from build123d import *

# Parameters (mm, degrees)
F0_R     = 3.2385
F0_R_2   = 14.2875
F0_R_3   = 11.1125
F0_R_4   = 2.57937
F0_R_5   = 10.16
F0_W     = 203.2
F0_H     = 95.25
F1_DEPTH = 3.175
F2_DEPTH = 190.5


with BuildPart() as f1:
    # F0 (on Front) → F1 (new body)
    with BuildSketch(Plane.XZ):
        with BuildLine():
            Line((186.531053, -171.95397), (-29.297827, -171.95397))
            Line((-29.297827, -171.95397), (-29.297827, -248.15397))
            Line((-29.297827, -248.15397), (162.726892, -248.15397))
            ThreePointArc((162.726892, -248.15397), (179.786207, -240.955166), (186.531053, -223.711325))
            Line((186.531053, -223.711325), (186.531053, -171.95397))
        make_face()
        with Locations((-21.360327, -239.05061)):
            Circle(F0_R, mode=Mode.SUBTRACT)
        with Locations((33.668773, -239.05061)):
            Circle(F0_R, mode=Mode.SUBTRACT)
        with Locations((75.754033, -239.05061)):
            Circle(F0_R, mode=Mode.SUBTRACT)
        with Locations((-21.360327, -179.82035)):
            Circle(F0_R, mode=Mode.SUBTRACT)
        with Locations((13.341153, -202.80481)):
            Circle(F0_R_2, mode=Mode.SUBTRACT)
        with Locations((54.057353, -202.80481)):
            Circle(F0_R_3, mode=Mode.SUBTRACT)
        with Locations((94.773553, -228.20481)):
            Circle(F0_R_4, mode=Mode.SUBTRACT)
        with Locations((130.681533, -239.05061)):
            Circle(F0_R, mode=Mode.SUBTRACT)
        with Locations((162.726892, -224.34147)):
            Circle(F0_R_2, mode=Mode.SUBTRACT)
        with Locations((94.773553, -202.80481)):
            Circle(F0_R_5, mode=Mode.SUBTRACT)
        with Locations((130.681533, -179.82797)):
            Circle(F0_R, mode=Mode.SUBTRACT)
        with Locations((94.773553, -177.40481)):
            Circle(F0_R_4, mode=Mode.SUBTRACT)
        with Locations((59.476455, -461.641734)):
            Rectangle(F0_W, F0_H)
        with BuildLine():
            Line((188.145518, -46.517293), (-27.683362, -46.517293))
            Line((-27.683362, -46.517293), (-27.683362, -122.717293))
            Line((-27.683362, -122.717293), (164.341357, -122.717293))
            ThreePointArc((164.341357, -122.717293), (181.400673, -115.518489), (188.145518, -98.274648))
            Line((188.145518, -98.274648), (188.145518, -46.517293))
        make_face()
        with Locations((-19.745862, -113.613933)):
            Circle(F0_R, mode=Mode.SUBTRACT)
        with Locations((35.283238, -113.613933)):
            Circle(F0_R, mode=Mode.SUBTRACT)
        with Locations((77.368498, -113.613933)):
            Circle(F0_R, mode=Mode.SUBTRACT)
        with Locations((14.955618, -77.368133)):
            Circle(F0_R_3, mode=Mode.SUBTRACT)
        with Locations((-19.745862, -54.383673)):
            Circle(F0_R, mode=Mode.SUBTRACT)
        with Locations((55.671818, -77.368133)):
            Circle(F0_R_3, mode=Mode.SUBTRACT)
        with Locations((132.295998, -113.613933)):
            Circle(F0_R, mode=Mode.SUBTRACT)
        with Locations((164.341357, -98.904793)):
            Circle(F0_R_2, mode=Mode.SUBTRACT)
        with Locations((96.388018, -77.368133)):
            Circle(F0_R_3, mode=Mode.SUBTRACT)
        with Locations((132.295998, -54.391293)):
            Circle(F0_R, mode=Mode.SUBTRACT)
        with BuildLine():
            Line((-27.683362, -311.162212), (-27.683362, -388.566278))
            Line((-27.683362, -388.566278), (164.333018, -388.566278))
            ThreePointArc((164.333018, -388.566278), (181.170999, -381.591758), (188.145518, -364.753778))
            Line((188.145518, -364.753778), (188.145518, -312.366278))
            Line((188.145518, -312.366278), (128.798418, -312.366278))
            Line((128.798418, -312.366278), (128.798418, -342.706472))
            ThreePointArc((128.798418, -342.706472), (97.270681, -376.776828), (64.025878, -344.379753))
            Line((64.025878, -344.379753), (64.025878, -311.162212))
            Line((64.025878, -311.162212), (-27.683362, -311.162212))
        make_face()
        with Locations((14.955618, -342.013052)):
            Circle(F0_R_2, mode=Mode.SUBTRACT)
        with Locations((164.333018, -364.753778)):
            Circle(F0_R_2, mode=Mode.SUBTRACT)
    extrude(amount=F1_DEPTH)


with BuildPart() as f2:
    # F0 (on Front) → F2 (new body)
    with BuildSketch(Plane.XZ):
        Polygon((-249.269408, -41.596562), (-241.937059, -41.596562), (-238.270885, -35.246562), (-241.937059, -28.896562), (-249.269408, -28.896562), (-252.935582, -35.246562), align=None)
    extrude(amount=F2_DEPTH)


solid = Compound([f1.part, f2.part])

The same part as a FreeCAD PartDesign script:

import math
import FreeCAD as App
import Part
import Sketcher
from FreeCAD import Vector
Q = App.Units.Quantity

doc = App.newDocument("Part")
body = doc.addObject("PartDesign::Body", "Body")
body.AllowCompound = True

# Sketch on XZ plane
sketch1 = doc.addObject("Sketcher::SketchObject", "Sketch")
body.addObject(sketch1)
sketch1.AttachmentSupport = (doc.XZ_Plane, [""])
sketch1.MapMode = "FlatFace"
sketch1.addGeometry(Part.LineSegment(Vector(186.531053, -171.95397, 0), Vector(-29.297827, -171.95397, 0)), False)
sketch1.addGeometry(Part.LineSegment(Vector(-29.297827, -171.95397, 0), Vector(-29.297827, -248.15397, 0)), False)
sketch1.addGeometry(Part.LineSegment(Vector(-29.297827, -248.15397, 0), Vector(162.726892, -248.15397, 0)), False)
sketch1.addGeometry(Part.ArcOfCircle(Part.Circle(Vector(162.72689, -224.341468, 0), Vector(0, 0, 1), 23.812502), math.radians(-89.999996), math.radians(1.516378)), False)
sketch1.addGeometry(Part.LineSegment(Vector(186.531053, -223.711325, 0), Vector(186.531053, -171.95397, 0)), False)
sketch1.addGeometry(Part.Circle(Vector(-21.360327, -239.05061, 0), Vector(0, 0, 1), 3.2385), False)
sketch1.addGeometry(Part.Circle(Vector(33.668773, -239.05061, 0), Vector(0, 0, 1), 3.2385), False)
sketch1.addGeometry(Part.Circle(Vector(75.754033, -239.05061, 0), Vector(0, 0, 1), 3.2385), False)
sketch1.addGeometry(Part.Circle(Vector(94.773553, -228.20481, 0), Vector(0, 0, 1), 2.57937), False)
sketch1.addGeometry(Part.Circle(Vector(130.681533, -239.05061, 0), Vector(0, 0, 1), 3.2385), False)
sketch1.addGeometry(Part.Circle(Vector(162.726892, -224.34147, 0), Vector(0, 0, 1), 14.2875), False)
sketch1.addGeometry(Part.Circle(Vector(13.341153, -202.80481, 0), Vector(0, 0, 1), 14.2875), False)
sketch1.addGeometry(Part.Circle(Vector(54.057353, -202.80481, 0), Vector(0, 0, 1), 11.1125), False)
sketch1.addGeometry(Part.Circle(Vector(-21.360327, -179.82035, 0), Vector(0, 0, 1), 3.2385), False)
sketch1.addGeometry(Part.Circle(Vector(94.773553, -202.80481, 0), Vector(0, 0, 1), 10.16), False)
sketch1.addGeometry(Part.Circle(Vector(94.773553, -177.40481, 0), Vector(0, 0, 1), 2.57937), False)
sketch1.addGeometry(Part.Circle(Vector(130.681533, -179.82797, 0), Vector(0, 0, 1), 3.2385), False)
sketch1.addGeometry(Part.LineSegment(Vector(-42.123545, -414.016734, 0), Vector(-42.123545, -509.266734, 0)), False)
sketch1.addGeometry(Part.LineSegment(Vector(-42.123545, -509.266734, 0), Vector(161.076455, -509.266734, 0)), False)
sketch1.addGeometry(Part.LineSegment(Vector(161.076455, -509.266734, 0), Vector(161.076455, -414.016734, 0)), False)
sketch1.addGeometry(Part.LineSegment(Vector(161.076455, -414.016734, 0), Vector(-42.123545, -414.016734, 0)), False)
sketch1.addGeometry(Part.LineSegment(Vector(188.145518, -46.517293, 0), Vector(-27.683362, -46.517293, 0)), False)
sketch1.addGeometry(Part.LineSegment(Vector(-27.683362, -46.517293, 0), Vector(-27.683362, -122.717293, 0)), False)
sketch1.addGeometry(Part.LineSegment(Vector(-27.683362, -122.717293, 0), Vector(164.341357, -122.717293, 0)), False)
sketch1.addGeometry(Part.ArcOfCircle(Part.Circle(Vector(164.341357, -98.904793, 0), Vector(0, 0, 1), 23.8125), math.radians(-90), math.radians(1.516382)), False)
sketch1.addGeometry(Part.LineSegment(Vector(188.145518, -98.274648, 0), Vector(188.145518, -46.517293, 0)), False)
sketch1.addGeometry(Part.Circle(Vector(-19.745862, -113.613933, 0), Vector(0, 0, 1), 3.2385), False)
sketch1.addGeometry(Part.Circle(Vector(35.283238, -113.613933, 0), Vector(0, 0, 1), 3.2385), False)
sketch1.addGeometry(Part.Circle(Vector(77.368498, -113.613933, 0), Vector(0, 0, 1), 3.2385), False)
sketch1.addGeometry(Part.Circle(Vector(132.295998, -113.613933, 0), Vector(0, 0, 1), 3.2385), False)
sketch1.addGeometry(Part.Circle(Vector(164.341357, -98.904793, 0), Vector(0, 0, 1), 14.2875), False)
sketch1.addGeometry(Part.Circle(Vector(14.955618, -77.368133, 0), Vector(0, 0, 1), 11.1125), False)
sketch1.addGeometry(Part.Circle(Vector(55.671818, -77.368133, 0), Vector(0, 0, 1), 11.1125), False)
sketch1.addGeometry(Part.Circle(Vector(-19.745862, -54.383673, 0), Vector(0, 0, 1), 3.2385), False)
sketch1.addGeometry(Part.Circle(Vector(96.388018, -77.368133, 0), Vector(0, 0, 1), 11.1125), False)
sketch1.addGeometry(Part.Circle(Vector(132.295998, -54.391293, 0), Vector(0, 0, 1), 3.2385), False)
sketch1.addGeometry(Part.LineSegment(Vector(-27.683362, -311.162212, 0), Vector(-27.683362, -388.566278, 0)), False)
sketch1.addGeometry(Part.LineSegment(Vector(-27.683362, -388.566278, 0), Vector(164.333018, -388.566278, 0)), False)
sketch1.addGeometry(Part.ArcOfCircle(Part.Circle(Vector(164.333019, -364.753779, 0), Vector(0, 0, 1), 23.812499), math.radians(-90.000002), math.radians(0.000002)), False)
sketch1.addGeometry(Part.LineSegment(Vector(188.145518, -364.753778, 0), Vector(188.145518, -312.366278, 0)), False)
sketch1.addGeometry(Part.LineSegment(Vector(188.145518, -312.366278, 0), Vector(128.798418, -312.366278, 0)), False)
sketch1.addGeometry(Part.LineSegment(Vector(128.798418, -312.366278, 0), Vector(128.798418, -342.706472, 0)), False)
sketch1.addGeometry(Part.ArcOfCircle(Part.Circle(Vector(96.433761, -344.379753, 0), Vector(0, 0, 1), 32.407883), math.radians(180), math.radians(362.959607)), False)
sketch1.addGeometry(Part.LineSegment(Vector(64.025878, -344.379753, 0), Vector(64.025878, -311.162212, 0)), False)
sketch1.addGeometry(Part.LineSegment(Vector(64.025878, -311.162212, 0), Vector(-27.683362, -311.162212, 0)), False)
sketch1.addGeometry(Part.Circle(Vector(164.333018, -364.753778, 0), Vector(0, 0, 1), 14.2875), False)
sketch1.addGeometry(Part.Circle(Vector(14.955618, -342.013052, 0), Vector(0, 0, 1), 14.2875), False)
sketch1.addConstraint(Sketcher.Constraint("Coincident", 0, 2, 1, 1))
sketch1.addConstraint(Sketcher.Constraint("Coincident", 1, 2, 2, 1))
sketch1.addConstraint(Sketcher.Constraint("Coincident", 2, 2, 3, 1))
sketch1.addConstraint(Sketcher.Constraint("Coincident", 3, 2, 4, 1))
sketch1.addConstraint(Sketcher.Constraint("Coincident", 4, 2, 0, 1))
sketch1.addConstraint(Sketcher.Constraint("Coincident", 17, 2, 18, 1))
sketch1.addConstraint(Sketcher.Constraint("Coincident", 18, 2, 19, 1))
sketch1.addConstraint(Sketcher.Constraint("Coincident", 19, 2, 20, 1))
sketch1.addConstraint(Sketcher.Constraint("Coincident", 20, 2, 17, 1))
sketch1.addConstraint(Sketcher.Constraint("Coincident", 21, 2, 22, 1))
sketch1.addConstraint(Sketcher.Constraint("Coincident", 22, 2, 23, 1))
sketch1.addConstraint(Sketcher.Constraint("Coincident", 23, 2, 24, 1))
sketch1.addConstraint(Sketcher.Constraint("Coincident", 24, 2, 25, 1))
sketch1.addConstraint(Sketcher.Constraint("Coincident", 25, 2, 21, 1))
sketch1.addConstraint(Sketcher.Constraint("Coincident", 36, 2, 37, 1))
sketch1.addConstraint(Sketcher.Constraint("Coincident", 37, 2, 38, 1))
sketch1.addConstraint(Sketcher.Constraint("Coincident", 38, 2, 39, 1))
sketch1.addConstraint(Sketcher.Constraint("Coincident", 39, 2, 40, 1))
sketch1.addConstraint(Sketcher.Constraint("Coincident", 40, 2, 41, 1))
sketch1.addConstraint(Sketcher.Constraint("Coincident", 41, 2, 42, 2))
sketch1.addConstraint(Sketcher.Constraint("Coincident", 42, 1, 43, 1))
sketch1.addConstraint(Sketcher.Constraint("Coincident", 43, 2, 44, 1))
sketch1.addConstraint(Sketcher.Constraint("Coincident", 44, 2, 36, 1))
sketch1.addConstraint(Sketcher.Constraint("Horizontal", 0))
sketch1.addConstraint(Sketcher.Constraint("Vertical", 1))
sketch1.addConstraint(Sketcher.Constraint("Horizontal", 2))
sketch1.addConstraint(Sketcher.Constraint("Vertical", 4))
sketch1.addConstraint(Sketcher.Constraint("Vertical", 17))
sketch1.addConstraint(Sketcher.Constraint("Horizontal", 18))
sketch1.addConstraint(Sketcher.Constraint("Vertical", 19))
sketch1.addConstraint(Sketcher.Constraint("Horizontal", 20))
sketch1.addConstraint(Sketcher.Constraint("Horizontal", 21))
sketch1.addConstraint(Sketcher.Constraint("Vertical", 22))
sketch1.addConstraint(Sketcher.Constraint("Horizontal", 23))
sketch1.addConstraint(Sketcher.Constraint("Vertical", 25))
sketch1.addConstraint(Sketcher.Constraint("Vertical", 36))
sketch1.addConstraint(Sketcher.Constraint("Horizontal", 37))
sketch1.addConstraint(Sketcher.Constraint("Vertical", 39))
sketch1.addConstraint(Sketcher.Constraint("Horizontal", 40))
sketch1.addConstraint(Sketcher.Constraint("Vertical", 41))
sketch1.addConstraint(Sketcher.Constraint("Vertical", 43))
sketch1.addConstraint(Sketcher.Constraint("Horizontal", 44))
sketch1.addConstraint(Sketcher.Constraint("Coincident", 10, 3, 3, 3))
sketch1.addConstraint(Sketcher.Constraint("Coincident", 30, 3, 24, 3))
sketch1.addConstraint(Sketcher.Constraint("Coincident", 45, 3, 38, 3))
sketch1.addConstraint(Sketcher.Constraint("Diameter", 14, Q("0.8 in")))
sketch1.addConstraint(Sketcher.Constraint("DistanceX", 18, 1, 18, 2, Q("8 in")))
sketch1.addConstraint(Sketcher.Constraint("DistanceY", 1, 2, 1, 1, Q("3 in")))
sketch1.addConstraint(Sketcher.Constraint("DistanceY", 22, 2, 22, 1, Q("3 in")))
sketch1.addConstraint(Sketcher.Constraint("Diameter", 5, Q("0.255 in")))
sketch1.addConstraint(Sketcher.Constraint("Diameter", 6, Q("0.255 in")))
sketch1.addConstraint(Sketcher.Constraint("Diameter", 7, Q("0.255 in")))
sketch1.addConstraint(Sketcher.Constraint("Diameter", 9, Q("0.255 in")))
sketch1.addConstraint(Sketcher.Constraint("Diameter", 10, Q("1.125 in")))
sketch1.addConstraint(Sketcher.Constraint("Diameter", 11, Q("1.125 in")))
sketch1.addConstraint(Sketcher.Constraint("Diameter", 12, Q("0.875 in")))
sketch1.addConstraint(Sketcher.Constraint("Diameter", 13, Q("0.255 in")))
sketch1.addConstraint(Sketcher.Constraint("Diameter", 16, Q("0.255 in")))
sketch1.addConstraint(Sketcher.Constraint("Diameter", 26, Q("0.255 in")))
sketch1.addConstraint(Sketcher.Constraint("Diameter", 27, Q("0.255 in")))
sketch1.addConstraint(Sketcher.Constraint("Diameter", 28, Q("0.255 in")))
sketch1.addConstraint(Sketcher.Constraint("Diameter", 29, Q("0.255 in")))
sketch1.addConstraint(Sketcher.Constraint("Diameter", 30, Q("1.125 in")))
sketch1.addConstraint(Sketcher.Constraint("Diameter", 31, Q("0.875 in")))
sketch1.addConstraint(Sketcher.Constraint("Diameter", 32, Q("0.875 in")))
sketch1.addConstraint(Sketcher.Constraint("Diameter", 33, Q("0.255 in")))
sketch1.addConstraint(Sketcher.Constraint("Diameter", 34, Q("0.875 in")))
sketch1.addConstraint(Sketcher.Constraint("Diameter", 35, Q("0.255 in")))
sketch1.addConstraint(Sketcher.Constraint("Diameter", 45, Q("1.125 in")))
sketch1.addConstraint(Sketcher.Constraint("Diameter", 46, Q("1.125 in")))
sketch1.addConstraint(Sketcher.Constraint("Radius", 3, Q("0.9375001 in")))
sketch1.addConstraint(Sketcher.Constraint("Radius", 24, Q("0.9375 in")))
sketch1.addConstraint(Sketcher.Constraint("Radius", 38, Q("0.9375 in")))
sketch1.addConstraint(Sketcher.Constraint("DistanceY", 8, 3, 11, 3, Q("1 in")))
sketch1.addConstraint(Sketcher.Constraint("DistanceY", 8, 3, 12, 3, Q("1 in")))
sketch1.addConstraint(Sketcher.Constraint("DistanceY", 8, 3, 14, 3, Q("1 in")))
sketch1.addConstraint(Sketcher.Constraint("DistanceY", 14, 3, 15, 3, Q("1 in")))
sketch1.addConstraint(Sketcher.Constraint("DistanceY", 37, 2, 39, 2, Q("3 in")))
sketch1.addConstraint(Sketcher.Constraint("Diameter", 8, Q("0.2031 in")))
sketch1.addConstraint(Sketcher.Constraint("Diameter", 15, Q("0.2031 in")))
sketch1.addConstraint(Sketcher.Constraint("DistanceY", 17, 2, 17, 1, Q("3.75 in")))
sketch1.addConstraint(Sketcher.Constraint("DistanceY", 39, 1, 39, 2, Q("2.0625 in")))
sketch1.addConstraint(Sketcher.Constraint("DistanceY", 2, 2, 16, 3, Q("2.69 in")))
sketch1.addConstraint(Sketcher.Constraint("DistanceY", 35, 3, 25, 2, Q("0.31 in")))
sketch1.addConstraint(Sketcher.Constraint("DistanceX", 0, 2, 0, 1, Q("8.4972 in")))
sketch1.addConstraint(Sketcher.Constraint("DistanceX", 21, 2, 21, 1, Q("8.4972 in")))
sketch1.addConstraint(Sketcher.Constraint("DistanceX", 37, 1, 37, 2, Q("7.5597 in")))
sketch1.addConstraint(Sketcher.Constraint("DistanceX", 40, 2, 40, 1, Q("2.3365 in")))
sketch1.addConstraint(Sketcher.Constraint("DistanceX", 44, 2, 44, 1, Q("3.6106 in")))
sketch1.addConstraint(Sketcher.Constraint("DistanceY", 7, 3, 8, 3, Q("0.427 in")))
sketch1.addConstraint(Sketcher.Constraint("DistanceY", 6, 3, 8, 3, Q("0.427 in")))
sketch1.addConstraint(Sketcher.Constraint("DistanceY", 5, 3, 8, 3, Q("0.427 in")))
sketch1.addConstraint(Sketcher.Constraint("DistanceY", 9, 3, 8, 3, Q("0.427 in")))
sketch1.addConstraint(Sketcher.Constraint("DistanceX", 11, 3, 8, 3, Q("3.206 in")))
sketch1.addConstraint(Sketcher.Constraint("DistanceX", 11, 3, 12, 3, Q("1.603 in")))
sketch1.addConstraint(Sketcher.Constraint("DistanceX", 12, 3, 14, 3, Q("1.603 in")))
sketch1.addConstraint(Sketcher.Constraint("DistanceX", 12, 3, 15, 3, Q("1.603 in")))
sketch1.addConstraint(Sketcher.Constraint("DistanceY", 27, 3, 31, 3, Q("1.427 in")))
sketch1.addConstraint(Sketcher.Constraint("DistanceY", 26, 3, 31, 3, Q("1.427 in")))
sketch1.addConstraint(Sketcher.Constraint("DistanceY", 28, 3, 31, 3, Q("1.427 in")))
sketch1.addConstraint(Sketcher.Constraint("DistanceY", 29, 3, 31, 3, Q("1.427 in")))
sketch1.addConstraint(Sketcher.Constraint("DistanceX", 31, 3, 32, 3, Q("1.603 in")))
sketch1.addConstraint(Sketcher.Constraint("DistanceY", 27, 3, 32, 3, Q("1.427 in")))
sketch1.addConstraint(Sketcher.Constraint("DistanceX", 32, 3, 34, 3, Q("1.603 in")))
sketch1.addConstraint(Sketcher.Constraint("DistanceY", 28, 3, 34, 3, Q("1.427 in")))
sketch1.addConstraint(Sketcher.Constraint("DistanceX", 0, 2, 13, 3, Q("0.3125 in")))
sketch1.addConstraint(Sketcher.Constraint("DistanceX", 0, 2, 5, 3, Q("0.3125 in")))
sketch1.addConstraint(Sketcher.Constraint("DistanceX", 1, 2, 6, 3, Q("2.479 in")))
sketch1.addConstraint(Sketcher.Constraint("DistanceX", 21, 2, 33, 3, Q("0.3125 in")))
sketch1.addConstraint(Sketcher.Constraint("DistanceX", 21, 2, 26, 3, Q("0.3125 in")))
sketch1.addConstraint(Sketcher.Constraint("DistanceX", 21, 2, 27, 3, Q("2.479 in")))
sketch1.addConstraint(Sketcher.Constraint("DistanceX", 37, 2, 38, 2, Q("0.9375 in")))
sketch1.addConstraint(Sketcher.Constraint("Radius", 42, Q("32.407883 mm")))
sketch1.addConstraint(Sketcher.Constraint("DistanceY", 5, 3, 3, 3, Q("0.5791001 in")))
sketch1.addConstraint(Sketcher.Constraint("DistanceX", 6, 3, 7, 3, Q("1.6569 in")))
sketch1.addConstraint(Sketcher.Constraint("DistanceX", 7, 3, 8, 3, Q("0.7488 in")))
sketch1.addConstraint(Sketcher.Constraint("DistanceX", 8, 3, 9, 3, Q("1.4137 in")))
sketch1.addConstraint(Sketcher.Constraint("DistanceY", 11, 3, 13, 3, Q("0.9049 in")))
sketch1.addConstraint(Sketcher.Constraint("DistanceX", 15, 3, 16, 3, Q("1.4137 in")))
sketch1.addConstraint(Sketcher.Constraint("DistanceX", 27, 3, 28, 3, Q("1.6569 in")))
sketch1.addConstraint(Sketcher.Constraint("DistanceY", 28, 3, 24, 3, Q("0.5791 in")))
sketch1.addConstraint(Sketcher.Constraint("DistanceX", 28, 3, 29, 3, Q("2.1625 in")))
sketch1.addConstraint(Sketcher.Constraint("DistanceX", 31, 3, 27, 3, Q("0.8003 in")))
sketch1.addConstraint(Sketcher.Constraint("DistanceY", 31, 3, 33, 3, Q("0.9049 in")))
sketch1.addConstraint(Sketcher.Constraint("DistanceX", 34, 3, 35, 3, Q("1.4137 in")))
sketch1.addConstraint(Sketcher.Constraint("DistanceX", 36, 2, 46, 3, Q("1.6787 in")))
sketch1.addConstraint(Sketcher.Constraint("DistanceY", 46, 3, 43, 2, Q("1.2146 in")))
sketch1.addConstraint(Sketcher.Constraint("DistanceY", 41, 2, 43, 2, Q("1.2419 in")))
sketch1.addConstraint(Sketcher.Constraint("DistanceX", 2, 1, 2, 2, Q("192.024719 mm")))
sketch1.addConstraint(Sketcher.Constraint("DistanceX", 23, 1, 23, 2, Q("192.024719 mm")))
sketch1.addConstraint(Sketcher.Constraint("DistanceY", 43, 1, 43, 2, Q("33.217541 mm")))
sketch1.addConstraint(Sketcher.Constraint("DistanceX", -1, 1, 28, 3, Q("77.368498 mm")))
sketch1.addConstraint(Sketcher.Constraint("DistanceY", 4, 1, 4, 2, Q("51.757355 mm")))
sketch1.addConstraint(Sketcher.Constraint("DistanceY", 25, 1, 25, 2, Q("51.757355 mm")))
sketch1.addConstraint(Sketcher.Constraint("DistanceY", 36, 2, 36, 1, Q("77.404066 mm")))
sketch1.addConstraint(Sketcher.Constraint("DistanceX", -1, 1, 3, 3, Q("162.72689 mm")))
sketch1.addConstraint(Sketcher.Constraint("DistanceY", 3, 3, -1, 1, Q("224.341468 mm")))
sketch1.addConstraint(Sketcher.Constraint("DistanceX", -1, 1, 38, 3, Q("164.333019 mm")))
sketch1.addConstraint(Sketcher.Constraint("DistanceY", 38, 3, -1, 1, Q("364.753779 mm")))
sketch1.addConstraint(Sketcher.Constraint("DistanceY", 24, 2, -1, 1, Q("98.274648 mm")))
sketch1.addConstraint(Sketcher.Constraint("DistanceY", 17, 2, 46, 3, Q("167.253682 mm")))
sketch1.addConstraint(Sketcher.Constraint("DistanceX", 17, 2, -1, 1, Q("42.123545 mm")))
pad1 = doc.addObject("PartDesign::Pad", "Pad")
body.addObject(pad1)
pad1.Profile = sketch1
pad1.Length = Q("0.125 in")
body2 = doc.addObject("PartDesign::Body", "Body001")

# Sketch on XZ plane
sketch2 = doc.addObject("Sketcher::SketchObject", "Sketch001")
body2.addObject(sketch2)
sketch2.AttachmentSupport = (doc.getObject("XZ_Plane001"), [""])
sketch2.MapMode = "FlatFace"
sketch2.addGeometry(Part.LineSegment(Vector(-249.269408, -41.596562, 0), Vector(-241.937059, -41.596562, 0)), False)
sketch2.addGeometry(Part.LineSegment(Vector(-241.937059, -41.596562, 0), Vector(-238.270885, -35.246562, 0)), False)
sketch2.addGeometry(Part.LineSegment(Vector(-238.270885, -35.246562, 0), Vector(-241.937059, -28.896562, 0)), False)
sketch2.addGeometry(Part.LineSegment(Vector(-241.937059, -28.896562, 0), Vector(-249.269408, -28.896562, 0)), False)
sketch2.addGeometry(Part.LineSegment(Vector(-249.269408, -28.896562, 0), Vector(-252.935582, -35.246562, 0)), False)
sketch2.addGeometry(Part.LineSegment(Vector(-252.935582, -35.246562, 0), Vector(-249.269408, -41.596562, 0)), False)
sketch2.addConstraint(Sketcher.Constraint("Coincident", 0, 2, 1, 1))
sketch2.addConstraint(Sketcher.Constraint("Coincident", 1, 2, 2, 1))
sketch2.addConstraint(Sketcher.Constraint("Coincident", 2, 2, 3, 1))
sketch2.addConstraint(Sketcher.Constraint("Coincident", 3, 2, 4, 1))
sketch2.addConstraint(Sketcher.Constraint("Coincident", 4, 2, 5, 1))
sketch2.addConstraint(Sketcher.Constraint("Coincident", 5, 2, 0, 1))
sketch2.addConstraint(Sketcher.Constraint("Horizontal", 0))
sketch2.addConstraint(Sketcher.Constraint("Horizontal", 3))
sketch2.addConstraint(Sketcher.Constraint("Parallel", 1, 4))
sketch2.addConstraint(Sketcher.Constraint("Parallel", 2, 5))
sketch2.addConstraint(Sketcher.Constraint("Horizontal", 1, 2, 4, 2))
sketch2.addConstraint(Sketcher.Constraint("Vertical", 0, 2, 2, 2))
sketch2.addConstraint(Sketcher.Constraint("Vertical", 3, 2, 5, 2))
sketch2.addConstraint(Sketcher.Constraint("Angle", 1, Q("60.000001 deg")))
sketch2.addConstraint(Sketcher.Constraint("DistanceY", 0, 2, 2, 2, Q("0.5 in")))
sketch2.addConstraint(Sketcher.Constraint("DistanceX", 0, 1, 0, 2, Q("7.332349 mm")))
sketch2.addConstraint(Sketcher.Constraint("DistanceX", 0, 2, -1, 1, Q("241.937059 mm")))
sketch2.addConstraint(Sketcher.Constraint("DistanceY", 1, 2, -1, 1, Q("35.246562 mm")))
pad2 = doc.addObject("PartDesign::Pad", "Pad001")
body2.addObject(pad2)
pad2.Profile = sketch2
pad2.Length = Q("7.5 in")

doc.recompute()
